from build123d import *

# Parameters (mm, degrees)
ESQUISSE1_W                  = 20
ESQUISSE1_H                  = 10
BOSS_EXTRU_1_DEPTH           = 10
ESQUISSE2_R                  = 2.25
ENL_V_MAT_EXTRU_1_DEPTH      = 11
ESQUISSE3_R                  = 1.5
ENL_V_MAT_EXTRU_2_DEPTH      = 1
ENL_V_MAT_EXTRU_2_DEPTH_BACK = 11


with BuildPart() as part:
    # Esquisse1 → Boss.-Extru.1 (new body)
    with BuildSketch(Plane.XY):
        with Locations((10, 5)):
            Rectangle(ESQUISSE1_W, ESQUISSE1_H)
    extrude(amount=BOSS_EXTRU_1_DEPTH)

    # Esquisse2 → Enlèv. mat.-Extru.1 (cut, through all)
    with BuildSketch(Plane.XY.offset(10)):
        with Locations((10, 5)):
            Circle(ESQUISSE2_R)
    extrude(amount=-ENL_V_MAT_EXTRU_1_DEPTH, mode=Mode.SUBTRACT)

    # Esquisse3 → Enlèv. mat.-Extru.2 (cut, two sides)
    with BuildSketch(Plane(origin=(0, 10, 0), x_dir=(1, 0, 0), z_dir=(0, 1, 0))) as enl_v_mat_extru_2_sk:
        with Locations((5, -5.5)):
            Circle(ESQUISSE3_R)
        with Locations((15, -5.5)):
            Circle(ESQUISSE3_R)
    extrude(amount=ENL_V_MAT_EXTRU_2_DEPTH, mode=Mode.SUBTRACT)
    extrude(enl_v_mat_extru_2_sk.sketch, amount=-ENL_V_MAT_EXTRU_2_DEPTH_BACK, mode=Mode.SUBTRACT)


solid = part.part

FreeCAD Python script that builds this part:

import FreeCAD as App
import Part
import Sketcher

V = App.Vector
Q = App.Units.Quantity


def add_polygon(sketch, points):
    """Adds a closed chain of lines whose ends are joined by coincident constraints."""
    first, n = sketch.GeometryCount, len(points)
    for a, b in zip(points, points[1:] + points[:1]):
        sketch.addGeometry(Part.LineSegment(App.Vector(*a, 0), App.Vector(*b, 0)), False)
    for i in range(n):
        sketch.addConstraint(Sketcher.Constraint("Coincident", first + i, 2, first + (i + 1) % n, 1))

doc = App.newDocument("Part")
body = doc.addObject("PartDesign::Body", "Body")

# Sketch on XY plane
sketch1 = body.newObject("Sketcher::SketchObject", "Sketch")
sketch1.AttachmentSupport = (doc.getObject("XY_Plane"), [""])
sketch1.MapMode = "FlatFace"
add_polygon(sketch1, [(0, 10), (0, 0), (20, 0), (20, 10)])  # lines 0-3
sketch1.addConstraint(Sketcher.Constraint("Vertical", 0))
sketch1.addConstraint(Sketcher.Constraint("Horizontal", 1))
sketch1.addConstraint(Sketcher.Constraint("Vertical", 2))
sketch1.addConstraint(Sketcher.Constraint("Horizontal", 3))
sketch1.addConstraint(Sketcher.Constraint("Coincident", 0, 2, -1, 1))
sketch1.addConstraint(Sketcher.Constraint("DistanceX", 1, 1, 1, 2, Q("20 mm")))
sketch1.addConstraint(Sketcher.Constraint("DistanceY", 0, 2, 0, 1, Q("10 mm")))
pad1 = body.newObject("PartDesign::Pad", "Pad")
pad1.Profile = sketch1
pad1.Length = 10

# Sketch on XY plane
sketch2 = body.newObject("Sketcher::SketchObject", "Sketch001")
sketch2.AttachmentSupport = (doc.getObject("XY_Plane"), [""])
sketch2.MapMode = "FlatFace"
sketch2.AttachmentOffset = App.Placement(V(0, 0, 10), App.Rotation())
sketch2.addGeometry(Part.Circle(V(10, 5, 0), V(0, 0, 1), 2.2), False)
sketch2.addConstraint(Sketcher.Constraint("Diameter", 0, Q("4.5 mm")))
sketch2.addConstraint(Sketcher.Constraint("DistanceX", -1, 1, 0, 3, Q("10 mm")))
sketch2.addConstraint(Sketcher.Constraint("DistanceY", -1, 1, 0, 3, Q("5 mm")))
pocket1 = body.newObject("PartDesign::Pocket", "Pocket")
pocket1.Profile = sketch2
pocket1.Type = "ThroughAll"

# Sketch on XZ plane
sketch3 = body.newObject("Sketcher::SketchObject", "Sketch002")
sketch3.AttachmentSupport = (doc.getObject("XZ_Plane"), [""])
sketch3.MapMode = "FlatFace"
sketch3.AttachmentOffset = App.Placement(V(0, 0, -10), App.Rotation())
sketch3.addGeometry(Part.Circle(V(5, 5.5, 0), V(0, 0, 1), 1.5), False)
sketch3.addGeometry(Part.Circle(V(15, 5.5, 0), V(0, 0, 1), 1.5), False)
sketch3.addConstraint(Sketcher.Constraint("Equal", 0, 1))
sketch3.addConstraint(Sketcher.Constraint("Horizontal", 0, 3, 1, 3))
sketch3.addConstraint(Sketcher.Constraint("Diameter", 0, Q("3 mm")))
sketch3.addConstraint(Sketcher.Constraint("DistanceX", -1, 1, 0, 3, Q("5 mm")))
sketch3.addConstraint(Sketcher.Constraint("DistanceX", -1, 1, 1, 3, Q("15 mm")))
sketch3.addConstraint(Sketcher.Constraint("DistanceY", -1, 1, 0, 3, Q("5.5 mm")))
pocket2 = body.newObject("PartDesign::Pocket", "Pocket001")
pocket2.Profile = sketch3
pocket2.Type = "ThroughAll"
pocket2.Midplane = True

doc.recompute()
